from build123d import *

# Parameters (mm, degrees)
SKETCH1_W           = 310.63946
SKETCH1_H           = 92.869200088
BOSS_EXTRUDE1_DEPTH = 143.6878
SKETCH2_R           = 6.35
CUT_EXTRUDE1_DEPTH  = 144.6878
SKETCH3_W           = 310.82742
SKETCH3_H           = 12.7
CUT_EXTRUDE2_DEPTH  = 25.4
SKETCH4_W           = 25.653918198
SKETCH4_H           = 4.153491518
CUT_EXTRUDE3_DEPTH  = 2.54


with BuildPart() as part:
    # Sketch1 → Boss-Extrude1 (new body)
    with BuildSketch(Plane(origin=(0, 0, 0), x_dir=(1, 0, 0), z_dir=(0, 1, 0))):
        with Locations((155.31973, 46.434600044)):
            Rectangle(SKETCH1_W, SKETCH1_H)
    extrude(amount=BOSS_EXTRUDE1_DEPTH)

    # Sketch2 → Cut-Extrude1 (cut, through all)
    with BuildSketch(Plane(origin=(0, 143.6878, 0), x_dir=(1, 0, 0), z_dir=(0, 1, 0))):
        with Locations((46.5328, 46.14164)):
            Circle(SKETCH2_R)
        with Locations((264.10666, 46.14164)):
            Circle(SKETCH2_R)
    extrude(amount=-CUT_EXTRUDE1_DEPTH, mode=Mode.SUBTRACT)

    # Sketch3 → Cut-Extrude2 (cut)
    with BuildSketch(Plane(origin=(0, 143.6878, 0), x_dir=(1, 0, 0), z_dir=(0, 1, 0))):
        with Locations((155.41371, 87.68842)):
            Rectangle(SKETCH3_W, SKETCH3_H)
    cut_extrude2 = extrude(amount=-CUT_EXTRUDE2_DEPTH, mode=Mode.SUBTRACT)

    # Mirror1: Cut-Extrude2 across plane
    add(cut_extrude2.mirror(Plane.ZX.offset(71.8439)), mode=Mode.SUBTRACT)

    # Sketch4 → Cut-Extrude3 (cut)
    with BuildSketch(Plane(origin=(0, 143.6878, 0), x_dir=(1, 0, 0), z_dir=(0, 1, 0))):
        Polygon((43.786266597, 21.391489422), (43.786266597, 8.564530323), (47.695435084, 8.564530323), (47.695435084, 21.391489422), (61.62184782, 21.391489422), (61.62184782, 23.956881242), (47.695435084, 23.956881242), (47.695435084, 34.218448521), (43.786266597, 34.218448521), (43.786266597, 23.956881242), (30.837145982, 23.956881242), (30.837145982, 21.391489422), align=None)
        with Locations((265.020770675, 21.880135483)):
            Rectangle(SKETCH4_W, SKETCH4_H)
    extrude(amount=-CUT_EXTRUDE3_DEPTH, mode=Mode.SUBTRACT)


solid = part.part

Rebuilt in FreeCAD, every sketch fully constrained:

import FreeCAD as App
import Part
import Sketcher
from FreeCAD import Vector
Q = App.Units.Quantity

doc = App.newDocument("Part")
params = doc.addObject("Spreadsheet::Sheet", "Params")
for row, (alias, value) in enumerate([
    ("pad1_length", "5.657 in"),
    ("sketch2_diameter", "0.5 in"),
    ("sketch3_height", "0.5 in"),
    ("pocket2_length", "1 in"),
    ("pocket3_length", "0.1 in"),
], start=1):
    params.set(f"A{row}", alias)
    params.set(f"B{row}", "=" + value)
    params.setAlias(f"B{row}", alias)

body = doc.addObject("PartDesign::Body", "Body")

sketch1 = doc.addObject("Sketcher::SketchObject", "Sketch")
body.addObject(sketch1)
sketch1.AttachmentSupport = (doc.XZ_Plane, [""])
sketch1.MapMode = "FlatFace"
sketch1.addGeometry(Part.LineSegment(Vector(0, -92.8692, 0), Vector(0, 0, 0)), False)
sketch1.addGeometry(Part.LineSegment(Vector(0, 0, 0), Vector(310.63946, 0, 0)), False)
sketch1.addGeometry(Part.LineSegment(Vector(310.63946, 0, 0), Vector(310.63946, -92.8692, 0)), False)
sketch1.addGeometry(Part.LineSegment(Vector(310.63946, -92.8692, 0), Vector(0, -92.8692, 0)), False)
sketch1.addConstraint(Sketcher.Constraint("Coincident", 0, 2, 1, 1))
sketch1.addConstraint(Sketcher.Constraint("Coincident", 1, 2, 2, 1))
sketch1.addConstraint(Sketcher.Constraint("Coincident", 2, 2, 3, 1))
sketch1.addConstraint(Sketcher.Constraint("Coincident", 3, 2, 0, 1))
sketch1.addConstraint(Sketcher.Constraint("Vertical", 0))
sketch1.addConstraint(Sketcher.Constraint("Horizontal", 1))
sketch1.addConstraint(Sketcher.Constraint("Vertical", 2))
sketch1.addConstraint(Sketcher.Constraint("Horizontal", 3))
sketch1.addConstraint(Sketcher.Constraint("Coincident", 0, 2, -1, 1))
sketch1.addConstraint(Sketcher.Constraint("DistanceX", 1, 1, 1, 2, Q("12.2299 in")))
sketch1.addConstraint(Sketcher.Constraint("DistanceY", 0, 1, 0, 2, Q("92.8692 mm")))
pad1 = doc.addObject("PartDesign::Pad", "Pad")
body.addObject(pad1)
pad1.Profile = sketch1
pad1.setExpression("Length", "Params.pad1_length")
pad1.Reversed = True

sketch2 = doc.addObject("Sketcher::SketchObject", "Sketch001")
body.addObject(sketch2)
sketch2.AttachmentSupport = (doc.XZ_Plane, [""])
sketch2.MapMode = "FlatFace"
sketch2.AttachmentOffset = App.Placement(Vector(0, 0, -5.657 * 25.4), App.Rotation())
sketch2.addGeometry(Part.Circle(Vector(46.5328, -46.14164, 0), Vector(0, 0, 1), 6.35), False)
sketch2.addGeometry(Part.Circle(Vector(264.10666, -46.14164, 0), Vector(0, 0, 1), 6.35), False)
sketch2.addConstraint(Sketcher.Constraint("Equal", 0, 1))
sketch2.addConstraint(Sketcher.Constraint("Horizontal", 0, 3, 1, 3))
sketch2.addConstraint(Sketcher.Constraint("Diameter", 0, Q("0.5 in")))
sketch2.addConstraint(Sketcher.Constraint("DistanceX", -1, 1, 0, 3, Q("1.832 in")))
sketch2.addConstraint(Sketcher.Constraint("DistanceY", 0, 3, -1, 1, Q("1.8166 in")))
sketch2.addConstraint(Sketcher.Constraint("DistanceX", -1, 1, 1, 3, Q("10.3979 in")))
sketch2.setExpression("Constraints[2]", "Params.sketch2_diameter")
pocket1 = doc.addObject("PartDesign::Pocket", "Pocket")
body.addObject(pocket1)
pocket1.Profile = sketch2
pocket1.Type = "ThroughAll"
pocket1.Reversed = True

sketch3 = doc.addObject("Sketcher::SketchObject", "Sketch002")
body.addObject(sketch3)
sketch3.AttachmentSupport = (doc.XZ_Plane, [""])
sketch3.MapMode = "FlatFace"
sketch3.AttachmentOffset = App.Placement(Vector(0, 0, -5.657 * 25.4), App.Rotation())
sketch3.addGeometry(Part.LineSegment(Vector(0, -94.03842, 0), Vector(0, -81.33842, 0)), False)
sketch3.addGeometry(Part.LineSegment(Vector(0, -81.33842, 0), Vector(310.82742, -81.33842, 0)), False)
sketch3.addGeometry(Part.LineSegment(Vector(310.82742, -81.33842, 0), Vector(310.82742, -94.03842, 0)), False)
sketch3.addGeometry(Part.LineSegment(Vector(310.82742, -94.03842, 0), Vector(0, -94.03842, 0)), False)
sketch3.addConstraint(Sketcher.Constraint("Coincident", 0, 2, 1, 1))
sketch3.addConstraint(Sketcher.Constraint("Coincident", 1, 2, 2, 1))
sketch3.addConstraint(Sketcher.Constraint("Coincident", 2, 2, 3, 1))
sketch3.addConstraint(Sketcher.Constraint("Coincident", 3, 2, 0, 1))
sketch3.addConstraint(Sketcher.Constraint("Vertical", 0))
sketch3.addConstraint(Sketcher.Constraint("Horizontal", 1))
sketch3.addConstraint(Sketcher.Constraint("Vertical", 2))
sketch3.addConstraint(Sketcher.Constraint("Horizontal", 3))
sketch3.addConstraint(Sketcher.Constraint("PointOnObject", 0, 2, -2))
sketch3.addConstraint(Sketcher.Constraint("DistanceY", 0, 1, 0, 2, Q("0.5 in")))
sketch3.addConstraint(Sketcher.Constraint("DistanceX", 1, 1, 1, 2, Q("12.2373 in")))
sketch3.addConstraint(Sketcher.Constraint("DistanceY", 0, 2, -1, 1, Q("3.2023 in")))
sketch3.setExpression("Constraints[9]", "Params.sketch3_height")
pocket2 = doc.addObject("PartDesign::Pocket", "Pocket001")
body.addObject(pocket2)
pocket2.Profile = sketch3
pocket2.setExpression("Length", "Params.pocket2_length")
pocket2.Reversed = True
doc.recompute()

datumplane = doc.addObject("PartDesign::Plane", "DatumPlane")
body.addObject(datumplane)
datumplane.AttachmentSupport = (doc.XZ_Plane, [""])
datumplane.MapMode = "FlatFace"
datumplane.AttachmentOffset = App.Placement(Vector(0, 0, -2.8285 * 25.4), App.Rotation())
mirrored = doc.addObject("PartDesign::Mirrored", "Mirrored")
body.addObject(mirrored)
mirrored.Originals = [pocket2]
mirrored.MirrorPlane = (datumplane, [""])
body.Tip = mirrored

sketch4 = doc.addObject("Sketcher::SketchObject", "Sketch003")
body.addObject(sketch4)
sketch4.AttachmentSupport = (doc.XZ_Plane, [""])
sketch4.MapMode = "FlatFace"
sketch4.AttachmentOffset = App.Placement(Vector(0, 0, -5.657 * 25.4), App.Rotation())
sketch4.addGeometry(Part.LineSegment(Vector(43.786267, -21.391489, 0), Vector(43.786267, -8.56453, 0)), False)
sketch4.addGeometry(Part.LineSegment(Vector(43.786267, -8.56453, 0), Vector(47.695435, -8.56453, 0)), False)
sketch4.addGeometry(Part.LineSegment(Vector(47.695435, -8.56453, 0), Vector(47.695435, -21.391489, 0)), False)
sketch4.addGeometry(Part.LineSegment(Vector(47.695435, -21.391489, 0), Vector(61.621848, -21.391489, 0)), False)
sketch4.addGeometry(Part.LineSegment(Vector(61.621848, -21.391489, 0), Vector(61.621848, -23.956881, 0)), False)
sketch4.addGeometry(Part.LineSegment(Vector(61.621848, -23.956881, 0), Vector(47.695435, -23.956881, 0)), False)
sketch4.addGeometry(Part.LineSegment(Vector(47.695435, -23.956881, 0), Vector(47.695435, -34.218449, 0)), False)
sketch4.addGeometry(Part.LineSegment(Vector(47.695435, -34.218449, 0), Vector(43.786267, -34.218449, 0)), False)
sketch4.addGeometry(Part.LineSegment(Vector(43.786267, -34.218449, 0), Vector(43.786267, -23.956881, 0)), False)
sketch4.addGeometry(Part.LineSegment(Vector(43.786267, -23.956881, 0), Vector(30.837146, -23.956881, 0)), False)
sketch4.addGeometry(Part.LineSegment(Vector(30.837146, -23.956881, 0), Vector(30.837146, -21.391489, 0)), False)
sketch4.addGeometry(Part.LineSegment(Vector(30.837146, -21.391489, 0), Vector(43.786267, -21.391489, 0)), False)
sketch4.addGeometry(Part.LineSegment(Vector(252.193812, -23.956881, 0), Vector(252.193812, -19.80339, 0)), False)
sketch4.addGeometry(Part.LineSegment(Vector(252.193812, -19.80339, 0), Vector(277.84773, -19.80339, 0)), False)
sketch4.addGeometry(Part.LineSegment(Vector(277.84773, -19.80339, 0), Vector(277.84773, -23.956881, 0)), False)
sketch4.addGeometry(Part.LineSegment(Vector(277.84773, -23.956881, 0), Vector(252.193812, -23.956881, 0)), False)
sketch4.addConstraint(Sketcher.Constraint("Coincident", 0, 2, 1, 1))
sketch4.addConstraint(Sketcher.Constraint("Coincident", 1, 2, 2, 1))
sketch4.addConstraint(Sketcher.Constraint("Coincident", 2, 2, 3, 1))
sketch4.addConstraint(Sketcher.Constraint("Coincident", 3, 2, 4, 1))
sketch4.addConstraint(Sketcher.Constraint("Coincident", 4, 2, 5, 1))
sketch4.addConstraint(Sketcher.Constraint("Coincident", 5, 2, 6, 1))
sketch4.addConstraint(Sketcher.Constraint("Coincident", 6, 2, 7, 1))
sketch4.addConstraint(Sketcher.Constraint("Coincident", 7, 2, 8, 1))
sketch4.addConstraint(Sketcher.Constraint("Coincident", 8, 2, 9, 1))
sketch4.addConstraint(Sketcher.Constraint("Coincident", 9, 2, 10, 1))
sketch4.addConstraint(Sketcher.Constraint("Coincident", 10, 2, 11, 1))
sketch4.addConstraint(Sketcher.Constraint("Coincident", 11, 2, 0, 1))
sketch4.addConstraint(Sketcher.Constraint("Coincident", 12, 2, 13, 1))
sketch4.addConstraint(Sketcher.Constraint("Coincident", 13, 2, 14, 1))
sketch4.addConstraint(Sketcher.Constraint("Coincident", 14, 2, 15, 1))
sketch4.addConstraint(Sketcher.Constraint("Coincident", 15, 2, 12, 1))
sketch4.addConstraint(Sketcher.Constraint("Vertical", 0))
sketch4.addConstraint(Sketcher.Constraint("Horizontal", 1))
sketch4.addConstraint(Sketcher.Constraint("Vertical", 2))
sketch4.addConstraint(Sketcher.Constraint("Horizontal", 3))
sketch4.addConstraint(Sketcher.Constraint("Vertical", 4))
sketch4.addConstraint(Sketcher.Constraint("Horizontal", 5))
sketch4.addConstraint(Sketcher.Constraint("Vertical", 6))
sketch4.addConstraint(Sketcher.Constraint("Horizontal", 7))
sketch4.addConstraint(Sketcher.Constraint("Vertical", 8))
sketch4.addConstraint(Sketcher.Constraint("Horizontal", 9))
sketch4.addConstraint(Sketcher.Constraint("Vertical", 10))
sketch4.addConstraint(Sketcher.Constraint("Horizontal", 11))
sketch4.addConstraint(Sketcher.Constraint("Vertical", 12))
sketch4.addConstraint(Sketcher.Constraint("Horizontal", 13))
sketch4.addConstraint(Sketcher.Constraint("Vertical", 14))
sketch4.addConstraint(Sketcher.Constraint("Horizontal", 15))
sketch4.addConstraint(Sketcher.Constraint("Horizontal", 5, 2, 8, 2))
sketch4.addConstraint(Sketcher.Constraint("Horizontal", 3, 2, 10, 2))
sketch4.addConstraint(Sketcher.Constraint("Horizontal", 9, 2, 14, 2))
sketch4.addConstraint(Sketcher.Constraint("Vertical", 2, 2, 5, 2))
sketch4.addConstraint(Sketcher.Constraint("Vertical", 0, 2, 7, 2))
sketch4.addConstraint(Sketcher.Constraint("DistanceX", 1, 1, 1, 2, Q("3.909168 mm")))
sketch4.addConstraint(Sketcher.Constraint("DistanceX", 9, 2, 9, 1, Q("12.949121 mm")))
sketch4.addConstraint(Sketcher.Constraint("DistanceX", 13, 1, 13, 2, Q("25.653918 mm")))
sketch4.addConstraint(Sketcher.Constraint("DistanceY", 0, 1, 0, 2, Q("12.826959 mm")))
sketch4.addConstraint(Sketcher.Constraint("DistanceY", 4, 2, 4, 1, Q("2.565392 mm")))
sketch4.addConstraint(Sketcher.Constraint("DistanceY", 12, 1, 12, 2, Q("4.153492 mm")))
sketch4.addConstraint(Sketcher.Constraint("DistanceX", 3, 1, 3, 2, Q("13.926413 mm")))
sketch4.addConstraint(Sketcher.Constraint("DistanceY", 6, 2, 6, 1, Q("10.261567 mm")))
sketch4.addConstraint(Sketcher.Constraint("DistanceY", 0, 2, -1, 1, Q("8.56453 mm")))
sketch4.addConstraint(Sketcher.Constraint("DistanceX", -1, 1, 12, 2, Q("252.193812 mm")))
sketch4.addConstraint(Sketcher.Constraint("DistanceX", 3, 2, 13, 2, Q("216.225882 mm")))
pocket3 = doc.addObject("PartDesign::Pocket", "Pocket002")
body.addObject(pocket3)
pocket3.Profile = sketch4
pocket3.setExpression("Length", "Params.pocket3_length")
pocket3.Reversed = True

doc.recompute()
